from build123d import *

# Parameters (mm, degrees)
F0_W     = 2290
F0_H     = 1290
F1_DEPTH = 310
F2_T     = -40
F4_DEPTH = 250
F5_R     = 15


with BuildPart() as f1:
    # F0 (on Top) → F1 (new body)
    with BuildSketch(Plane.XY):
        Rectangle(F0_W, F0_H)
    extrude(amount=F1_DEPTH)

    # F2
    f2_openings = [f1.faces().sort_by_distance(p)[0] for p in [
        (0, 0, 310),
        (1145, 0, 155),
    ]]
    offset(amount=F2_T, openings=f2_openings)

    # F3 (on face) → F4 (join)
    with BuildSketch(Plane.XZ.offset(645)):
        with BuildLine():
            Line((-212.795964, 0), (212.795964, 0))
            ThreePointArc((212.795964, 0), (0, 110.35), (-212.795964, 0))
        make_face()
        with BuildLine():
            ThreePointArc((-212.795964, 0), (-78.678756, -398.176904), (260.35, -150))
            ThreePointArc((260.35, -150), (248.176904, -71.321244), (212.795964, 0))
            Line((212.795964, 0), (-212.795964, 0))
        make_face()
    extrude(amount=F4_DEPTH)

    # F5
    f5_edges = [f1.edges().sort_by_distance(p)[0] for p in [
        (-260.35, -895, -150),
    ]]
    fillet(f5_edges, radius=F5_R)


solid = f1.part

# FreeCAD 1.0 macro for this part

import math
import FreeCAD as App
import Part
import Sketcher


def edges_at(feature, points):
    """Names of the edges that pass closest to the given points."""
    edges = feature.Shape.Edges
    near = lambda p: min(range(len(edges)), key=lambda i: edges[i].distToShape(Part.Vertex(*p))[0])
    return sorted({f"Edge{near(p) + 1}" for p in points})


def faces_at(feature, points):
    """Names of the faces that lie closest to the given points."""
    faces = feature.Shape.Faces
    near = lambda p: min(range(len(faces)), key=lambda i: faces[i].distToShape(Part.Vertex(*p))[0])
    return sorted({f"Face{near(p) + 1}" for p in points})


def add_polygon(sketch, points):
    """Adds a closed chain of lines whose ends are joined by coincident constraints."""
    first, n = sketch.GeometryCount, len(points)
    for a, b in zip(points, points[1:] + points[:1]):
        sketch.addGeometry(Part.LineSegment(App.Vector(*a, 0), App.Vector(*b, 0)), False)
    for i in range(n):
        sketch.addConstraint(Sketcher.Constraint("Coincident", first + i, 2, first + (i + 1) % n, 1))

doc = App.newDocument("Part")
body = doc.addObject("PartDesign::Body", "Body")

# Sketch on XY plane
sketch1 = body.newObject("Sketcher::SketchObject", "Sketch")
sketch1.AttachmentSupport = (doc.getObject("XY_Plane"), [""])
sketch1.MapMode = "FlatFace"
add_polygon(sketch1, [(-1145, 645), (-1145, -645), (1145, -645), (1145, 645)])  # lines 0-3
sketch1.addConstraint([
    Sketcher.Constraint("Vertical", 0),
    Sketcher.Constraint("Horizontal", 1),
    Sketcher.Constraint("Vertical", 2),
    Sketcher.Constraint("Horizontal", 3),
    Sketcher.Constraint("Symmetric", 0, 2, 2, 2, -1, 1),
    Sketcher.Constraint("DistanceX", 1, 1, 1, 2, 2290.0),
    Sketcher.Constraint("DistanceY", 0, 2, 0, 1, 1290.0),
])
pad1 = body.newObject("PartDesign::Pad", "Pad")
pad1.Profile = sketch1
pad1.Length = 310
doc.recompute()

thickness = body.newObject("PartDesign::Thickness", "Thickness")
thickness.Base = (pad1, faces_at(pad1, [(0, 0, 310), (1145, 0, 155)]))
thickness.Value = 40
thickness.Reversed = True
thickness.Join = "Arc"

# Sketch on XZ plane
sketch2 = body.newObject("Sketcher::SketchObject", "Sketch001")
sketch2.AttachmentSupport = (doc.getObject("XZ_Plane"), [""])
sketch2.MapMode = "FlatFace"
sketch2.AttachmentOffset = App.Placement(App.Vector(0, 0, 645), App.Rotation())
sketch2.addGeometry([
    Part.ArcOfCircle(Part.Circle(App.Vector(0, -150, 0), App.Vector(0, 0, 1), 260), math.radians(35), math.radians(145)),
    Part.ArcOfCircle(Part.Circle(App.Vector(0, -150, 0), App.Vector(0, 0, 1), 260), math.radians(145), math.radians(360)),
    Part.ArcOfCircle(Part.Circle(App.Vector(0, -150, 0), App.Vector(0, 0, 1), 260), math.radians(0), math.radians(35)),
], False)
sketch2.addConstraint([
    Sketcher.Constraint("Tangent", 0, 2, 1, 1),
    Sketcher.Constraint("Tangent", 1, 2, 2, 1),
    Sketcher.Constraint("Coincident", 2, 2, 0, 1),
    Sketcher.Constraint("Equal", 0, 1),
    Sketcher.Constraint("Symmetric", 0, 2, 2, 2, -1, 1),
    Sketcher.Constraint("PointOnObject", 0, 3, -2),
    Sketcher.Constraint("Horizontal", 2, 3, 1, 2),
    Sketcher.Constraint("Radius", 0, 260.349999),
    Sketcher.Constraint("DistanceY", 0, 3, -1, 1, 149.999999),
])
pad2 = body.newObject("PartDesign::Pad", "Pad001")
pad2.Profile = sketch2
pad2.Length = 250
doc.recompute()

fillet = body.newObject("PartDesign::Fillet", "Fillet")
fillet.Base = (pad2, edges_at(pad2, [(-78.679, -895, -398.177)]))
fillet.Radius = 15

doc.recompute()
